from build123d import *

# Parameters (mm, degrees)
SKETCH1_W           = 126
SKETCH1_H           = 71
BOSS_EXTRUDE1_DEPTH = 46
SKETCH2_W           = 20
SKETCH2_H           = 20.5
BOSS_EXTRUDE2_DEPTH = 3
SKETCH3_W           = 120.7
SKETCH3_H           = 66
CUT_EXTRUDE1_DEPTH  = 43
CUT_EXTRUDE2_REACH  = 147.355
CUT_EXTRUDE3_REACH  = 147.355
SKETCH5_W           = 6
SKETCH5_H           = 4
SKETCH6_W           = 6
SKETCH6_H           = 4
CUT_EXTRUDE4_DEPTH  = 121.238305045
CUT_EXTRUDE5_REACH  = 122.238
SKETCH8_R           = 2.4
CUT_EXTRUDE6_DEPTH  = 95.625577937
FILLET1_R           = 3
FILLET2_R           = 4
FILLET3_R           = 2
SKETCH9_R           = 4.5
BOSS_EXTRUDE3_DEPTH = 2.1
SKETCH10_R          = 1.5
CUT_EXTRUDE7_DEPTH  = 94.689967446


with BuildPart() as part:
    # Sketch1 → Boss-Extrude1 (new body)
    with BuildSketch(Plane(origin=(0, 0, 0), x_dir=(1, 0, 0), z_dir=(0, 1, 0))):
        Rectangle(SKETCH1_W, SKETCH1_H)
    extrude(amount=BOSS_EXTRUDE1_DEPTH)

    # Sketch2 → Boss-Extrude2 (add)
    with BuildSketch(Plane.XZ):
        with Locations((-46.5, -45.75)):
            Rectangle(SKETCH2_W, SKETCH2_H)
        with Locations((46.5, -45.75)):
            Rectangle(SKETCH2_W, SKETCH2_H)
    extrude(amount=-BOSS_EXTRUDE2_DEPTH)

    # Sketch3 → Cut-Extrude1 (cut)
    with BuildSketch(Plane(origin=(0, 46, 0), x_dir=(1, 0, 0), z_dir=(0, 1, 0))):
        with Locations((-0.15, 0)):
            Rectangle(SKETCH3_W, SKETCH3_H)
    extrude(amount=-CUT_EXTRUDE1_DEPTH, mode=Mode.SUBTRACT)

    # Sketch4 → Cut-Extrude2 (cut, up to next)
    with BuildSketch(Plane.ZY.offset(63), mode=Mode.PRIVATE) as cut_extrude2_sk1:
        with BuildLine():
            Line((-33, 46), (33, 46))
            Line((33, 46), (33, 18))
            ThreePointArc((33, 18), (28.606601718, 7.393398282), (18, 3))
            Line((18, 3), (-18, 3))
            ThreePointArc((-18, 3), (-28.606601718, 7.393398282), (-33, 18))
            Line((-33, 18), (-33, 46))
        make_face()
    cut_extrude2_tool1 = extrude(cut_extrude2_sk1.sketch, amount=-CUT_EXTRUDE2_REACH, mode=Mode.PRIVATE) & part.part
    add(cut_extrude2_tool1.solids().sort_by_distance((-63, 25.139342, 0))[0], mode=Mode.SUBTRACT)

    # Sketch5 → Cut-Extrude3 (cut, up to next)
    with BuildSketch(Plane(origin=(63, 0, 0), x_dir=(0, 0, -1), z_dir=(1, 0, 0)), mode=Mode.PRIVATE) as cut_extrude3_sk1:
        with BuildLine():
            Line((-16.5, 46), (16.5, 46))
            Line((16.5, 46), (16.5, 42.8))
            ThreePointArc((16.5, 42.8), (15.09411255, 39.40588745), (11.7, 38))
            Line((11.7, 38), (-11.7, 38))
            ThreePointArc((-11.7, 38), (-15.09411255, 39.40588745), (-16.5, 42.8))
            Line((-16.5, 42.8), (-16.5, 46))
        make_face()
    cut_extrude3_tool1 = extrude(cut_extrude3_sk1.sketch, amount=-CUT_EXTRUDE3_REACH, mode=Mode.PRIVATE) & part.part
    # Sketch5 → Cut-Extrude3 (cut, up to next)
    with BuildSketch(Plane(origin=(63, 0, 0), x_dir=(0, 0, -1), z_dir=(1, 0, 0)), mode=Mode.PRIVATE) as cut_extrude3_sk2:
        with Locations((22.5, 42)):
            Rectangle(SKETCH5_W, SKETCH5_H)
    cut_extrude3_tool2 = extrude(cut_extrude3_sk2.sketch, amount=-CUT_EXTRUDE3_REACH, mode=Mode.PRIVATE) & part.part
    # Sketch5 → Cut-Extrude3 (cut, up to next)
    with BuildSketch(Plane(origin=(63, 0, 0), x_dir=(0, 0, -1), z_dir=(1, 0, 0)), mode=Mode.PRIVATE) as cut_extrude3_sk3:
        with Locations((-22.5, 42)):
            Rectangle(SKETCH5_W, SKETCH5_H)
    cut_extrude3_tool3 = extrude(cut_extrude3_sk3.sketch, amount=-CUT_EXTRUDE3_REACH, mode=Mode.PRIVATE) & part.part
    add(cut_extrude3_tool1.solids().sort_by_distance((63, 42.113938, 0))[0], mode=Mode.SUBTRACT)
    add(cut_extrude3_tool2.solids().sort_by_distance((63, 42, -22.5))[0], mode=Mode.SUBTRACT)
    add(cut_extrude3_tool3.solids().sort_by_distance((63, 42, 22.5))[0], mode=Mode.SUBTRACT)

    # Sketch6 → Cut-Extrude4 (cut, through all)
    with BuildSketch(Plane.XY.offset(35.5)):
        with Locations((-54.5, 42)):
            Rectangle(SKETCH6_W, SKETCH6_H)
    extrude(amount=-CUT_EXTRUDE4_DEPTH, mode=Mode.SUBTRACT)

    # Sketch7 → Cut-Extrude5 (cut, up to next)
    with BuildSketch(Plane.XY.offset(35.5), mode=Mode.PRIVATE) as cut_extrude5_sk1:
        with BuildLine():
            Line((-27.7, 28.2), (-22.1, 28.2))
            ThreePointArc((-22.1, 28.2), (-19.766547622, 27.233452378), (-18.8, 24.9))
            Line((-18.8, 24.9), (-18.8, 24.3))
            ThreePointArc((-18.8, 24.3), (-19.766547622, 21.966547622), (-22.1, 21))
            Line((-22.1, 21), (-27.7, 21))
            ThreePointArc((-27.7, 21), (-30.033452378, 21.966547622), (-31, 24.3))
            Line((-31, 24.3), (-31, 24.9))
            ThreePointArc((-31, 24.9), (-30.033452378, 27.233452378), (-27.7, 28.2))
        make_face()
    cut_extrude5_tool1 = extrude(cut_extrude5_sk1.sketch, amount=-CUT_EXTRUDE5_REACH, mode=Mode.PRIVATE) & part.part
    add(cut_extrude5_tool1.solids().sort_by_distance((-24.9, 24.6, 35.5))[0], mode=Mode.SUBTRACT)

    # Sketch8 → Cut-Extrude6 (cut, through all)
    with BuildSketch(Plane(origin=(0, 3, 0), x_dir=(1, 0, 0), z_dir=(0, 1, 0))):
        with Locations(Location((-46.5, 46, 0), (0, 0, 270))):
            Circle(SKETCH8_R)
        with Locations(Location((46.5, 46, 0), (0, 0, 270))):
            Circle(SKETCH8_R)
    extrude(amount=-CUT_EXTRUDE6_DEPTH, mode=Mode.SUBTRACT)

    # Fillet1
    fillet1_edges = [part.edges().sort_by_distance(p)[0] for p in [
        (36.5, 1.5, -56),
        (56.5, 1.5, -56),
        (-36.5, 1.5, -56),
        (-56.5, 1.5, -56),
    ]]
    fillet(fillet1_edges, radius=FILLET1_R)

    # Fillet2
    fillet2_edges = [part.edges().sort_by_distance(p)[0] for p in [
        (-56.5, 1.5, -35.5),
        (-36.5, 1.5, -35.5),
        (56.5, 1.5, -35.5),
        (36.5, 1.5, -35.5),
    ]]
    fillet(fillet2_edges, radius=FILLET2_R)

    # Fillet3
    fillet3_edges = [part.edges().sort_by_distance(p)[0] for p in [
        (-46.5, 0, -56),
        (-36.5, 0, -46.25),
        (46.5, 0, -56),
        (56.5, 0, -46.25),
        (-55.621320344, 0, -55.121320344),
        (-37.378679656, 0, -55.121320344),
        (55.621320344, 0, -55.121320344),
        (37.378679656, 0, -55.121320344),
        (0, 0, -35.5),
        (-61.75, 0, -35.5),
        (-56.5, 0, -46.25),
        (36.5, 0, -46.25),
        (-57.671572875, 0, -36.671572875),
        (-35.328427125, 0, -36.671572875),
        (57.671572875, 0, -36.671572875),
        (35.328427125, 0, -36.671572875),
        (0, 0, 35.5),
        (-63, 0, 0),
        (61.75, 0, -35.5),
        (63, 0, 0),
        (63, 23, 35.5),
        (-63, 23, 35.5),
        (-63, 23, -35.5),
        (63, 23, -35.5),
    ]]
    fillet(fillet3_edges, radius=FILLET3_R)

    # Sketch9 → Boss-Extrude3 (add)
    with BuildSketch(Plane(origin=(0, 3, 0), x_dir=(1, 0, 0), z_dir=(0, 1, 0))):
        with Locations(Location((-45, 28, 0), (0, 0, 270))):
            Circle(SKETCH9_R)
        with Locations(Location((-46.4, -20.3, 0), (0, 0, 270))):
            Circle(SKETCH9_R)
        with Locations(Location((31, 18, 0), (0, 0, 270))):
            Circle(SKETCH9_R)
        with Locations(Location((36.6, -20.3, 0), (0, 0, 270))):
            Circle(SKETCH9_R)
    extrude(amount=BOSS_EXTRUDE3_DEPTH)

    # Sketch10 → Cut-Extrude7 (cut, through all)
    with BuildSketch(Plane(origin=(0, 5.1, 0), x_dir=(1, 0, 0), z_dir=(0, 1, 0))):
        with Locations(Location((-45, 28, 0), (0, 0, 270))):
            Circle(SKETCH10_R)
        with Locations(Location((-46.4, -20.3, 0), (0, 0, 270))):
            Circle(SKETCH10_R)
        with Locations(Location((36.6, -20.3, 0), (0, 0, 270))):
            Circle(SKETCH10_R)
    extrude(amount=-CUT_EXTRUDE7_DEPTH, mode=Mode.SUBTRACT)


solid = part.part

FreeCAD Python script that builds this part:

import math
import FreeCAD as App
import Part
import Sketcher

V = App.Vector


def edges_at(feature, points):
    """Names of the edges that pass closest to the given points."""
    edges = feature.Shape.Edges
    near = lambda p: min(range(len(edges)), key=lambda i: edges[i].distToShape(Part.Vertex(*p))[0])
    return sorted({f"Edge{near(p) + 1}" for p in points})


def add_polygon(sketch, points):
    """Adds a closed chain of lines whose ends are joined by coincident constraints."""
    first, n = sketch.GeometryCount, len(points)
    for a, b in zip(points, points[1:] + points[:1]):
        sketch.addGeometry(Part.LineSegment(App.Vector(*a, 0), App.Vector(*b, 0)), False)
    for i in range(n):
        sketch.addConstraint(Sketcher.Constraint("Coincident", first + i, 2, first + (i + 1) % n, 1))

doc = App.newDocument("Part")
body = doc.addObject("PartDesign::Body", "Body")

# Sketch on XZ plane
sketch1 = body.newObject("Sketcher::SketchObject", "Sketch")
sketch1.AttachmentSupport = (doc.getObject("XZ_Plane"), [""])
sketch1.MapMode = "FlatFace"
add_polygon(sketch1, [(-63, -35.5), (-63, 35.5), (63, 35.5), (63, -35.5)])  # lines 0-3
sketch1.addConstraint([
    Sketcher.Constraint("Vertical", 0),
    Sketcher.Constraint("Horizontal", 1),
    Sketcher.Constraint("Vertical", 2),
    Sketcher.Constraint("Horizontal", 3),
    Sketcher.Constraint("Symmetric", 0, 2, 2, 2, -1, 1),
    Sketcher.Constraint("DistanceX", 1, 1, 1, 2, 126.0),
    Sketcher.Constraint("DistanceY", 0, 1, 0, 2, 71.0),
])
pad1 = body.newObject("PartDesign::Pad", "Pad")
pad1.Profile = sketch1
pad1.Length = 46
pad1.Reversed = True

# Sketch on XZ plane
sketch2 = body.newObject("Sketcher::SketchObject", "Sketch001")
sketch2.AttachmentSupport = (doc.getObject("XZ_Plane"), [""])
sketch2.MapMode = "FlatFace"
add_polygon(sketch2, [(-56.5, -35.5), (-56.5, -56), (-36.5, -56), (-36.5, -35.5)])  # lines 0-3
add_polygon(sketch2, [(36.5, -35.5), (36.5, -56), (56.5, -56), (56.5, -35.5)])  # lines 4-7
sketch2.addConstraint([
    Sketcher.Constraint("Vertical", 0),
    Sketcher.Constraint("Horizontal", 1),
    Sketcher.Constraint("Vertical", 2),
    Sketcher.Constraint("Horizontal", 3),
    Sketcher.Constraint("Vertical", 4),
    Sketcher.Constraint("Horizontal", 5),
    Sketcher.Constraint("Vertical", 6),
    Sketcher.Constraint("Horizontal", 7),
    Sketcher.Constraint("Symmetric", 1, 2, 4, 2, -2),
    Sketcher.Constraint("Symmetric", 3, 2, 6, 2, -2),
    Sketcher.Constraint("DistanceX", 1, 1, 1, 2, 20.0),
    Sketcher.Constraint("DistanceY", 0, 2, 0, 1, 20.5),
    Sketcher.Constraint("DistanceY", 0, 2, -1, 1, 56.0),
    Sketcher.Constraint("DistanceX", 1, 2, 4, 2, 73.0),
])
pad2 = body.newObject("PartDesign::Pad", "Pad001")
pad2.Profile = sketch2
pad2.Length = 3
pad2.Reversed = True

# Sketch on XZ plane
sketch3 = body.newObject("Sketcher::SketchObject", "Sketch002")
sketch3.AttachmentSupport = (doc.getObject("XZ_Plane"), [""])
sketch3.MapMode = "FlatFace"
sketch3.AttachmentOffset = App.Placement(V(0, 0, -46), App.Rotation())
add_polygon(sketch3, [(-60.5, -33), (-60.5, 33), (60.2, 33), (60.2, -33)])  # lines 0-3
sketch3.addConstraint([
    Sketcher.Constraint("Vertical", 0),
    Sketcher.Constraint("Horizontal", 1),
    Sketcher.Constraint("Vertical", 2),
    Sketcher.Constraint("Horizontal", 3),
    Sketcher.Constraint("DistanceY", 0, 1, 0, 2, 66.0),
    Sketcher.Constraint("DistanceX", 1, 1, 1, 2, 120.7),
    Sketcher.Constraint("DistanceY", -1, 1, 0, 2, 33.0),
    Sketcher.Constraint("DistanceX", 0, 2, -1, 1, 60.5),
])
pocket1 = body.newObject("PartDesign::Pocket", "Pocket")
pocket1.Profile = sketch3
pocket1.Length = 43
pocket1.Reversed = True

# Sketch on YZ plane
sketch4 = body.newObject("Sketcher::SketchObject", "Sketch003")
sketch4.AttachmentSupport = (doc.getObject("YZ_Plane"), [""])
sketch4.MapMode = "FlatFace"
sketch4.AttachmentOffset = App.Placement(V(0, 0, -63), App.Rotation())
sketch4.addGeometry([
    Part.LineSegment(V(46, 33, 0), V(46, -33, 0)),  # 0
    Part.LineSegment(V(46, -33, 0), V(18, -33, 0)),  # 1
    Part.ArcOfCircle(Part.Circle(V(18, -18, 0), V(0, 0, 1), 15), math.radians(180), math.radians(270)),  # 2
    Part.LineSegment(V(3, -18, 0), V(3, 18, 0)),  # 3
    Part.ArcOfCircle(Part.Circle(V(18, 18, 0), V(0, 0, 1), 15), math.radians(90), math.radians(180)),  # 4
    Part.LineSegment(V(18, 33, 0), V(46, 33, 0)),  # 5
], False)
sketch4.addConstraint([
    Sketcher.Constraint("Coincident", 0, 2, 1, 1),
    Sketcher.Constraint("Tangent", 1, 2, 2, 2),
    Sketcher.Constraint("Tangent", 2, 1, 3, 1),
    Sketcher.Constraint("Tangent", 3, 2, 4, 2),
    Sketcher.Constraint("Tangent", 4, 1, 5, 1),
    Sketcher.Constraint("Coincident", 5, 2, 0, 1),
    Sketcher.Constraint("Vertical", 0),
    Sketcher.Constraint("Horizontal", 1),
    Sketcher.Constraint("Vertical", 3),
    Sketcher.Constraint("Horizontal", 5),
    Sketcher.Constraint("Equal", 2, 4),
    Sketcher.Constraint("Radius", 2, 15.0),
    Sketcher.Constraint("DistanceX", 1, 2, 1, 1, 28.0),
    Sketcher.Constraint("DistanceY", 0, 2, 0, 1, 66.0),
    Sketcher.Constraint("DistanceX", -1, 1, 2, 3, 18.0),
    Sketcher.Constraint("DistanceY", 2, 3, -1, 1, 18.0),
])
pocket2 = body.newObject("PartDesign::Pocket", "Pocket001")
pocket2.Profile = sketch4
pocket2.Type = "UpToFirst"
pocket2.Reversed = True

# Sketch on YZ plane
sketch5 = body.newObject("Sketcher::SketchObject", "Sketch004")
sketch5.AttachmentSupport = (doc.getObject("YZ_Plane"), [""])
sketch5.MapMode = "FlatFace"
sketch5.AttachmentOffset = App.Placement(V(0, 0, 63), App.Rotation())
sketch5.addGeometry([
    Part.LineSegment(V(46, -16.5, 0), V(46, 16.5, 0)),  # 0
    Part.LineSegment(V(46, 16.5, 0), V(42.8, 16.5, 0)),  # 1
    Part.ArcOfCircle(Part.Circle(V(42.8, 11.7, 0), V(0, 0, 1), 4.8), math.radians(90), math.radians(180)),  # 2
    Part.LineSegment(V(38, 11.7, 0), V(38, -11.7, 0)),  # 3
    Part.ArcOfCircle(Part.Circle(V(42.8, -11.7, 0), V(0, 0, 1), 4.8), math.radians(180), math.radians(270)),  # 4
    Part.LineSegment(V(42.8, -16.5, 0), V(46, -16.5, 0)),  # 5
], False)
sketch5.addConstraint([
    Sketcher.Constraint("Coincident", 0, 2, 1, 1),
    Sketcher.Constraint("Tangent", 1, 2, 2, 1),
    Sketcher.Constraint("Tangent", 2, 2, 3, 1),
    Sketcher.Constraint("Tangent", 3, 2, 4, 1),
    Sketcher.Constraint("Tangent", 4, 2, 5, 1),
    Sketcher.Constraint("Coincident", 5, 2, 0, 1),
    Sketcher.Constraint("Vertical", 0),
    Sketcher.Constraint("Horizontal", 1),
    Sketcher.Constraint("Vertical", 3),
    Sketcher.Constraint("Horizontal", 5),
    Sketcher.Constraint("Equal", 2, 4),
    Sketcher.Constraint("Radius", 2, 4.8),
    Sketcher.Constraint("DistanceY", 0, 1, 0, 2, 33.0),
    Sketcher.Constraint("DistanceX", 1, 2, 1, 1, 3.2),
    Sketcher.Constraint("DistanceX", -1, 1, 0, 2, 46.0),
    Sketcher.Constraint("DistanceY", -1, 1, 2, 3, 11.7),
])
pocket3 = body.newObject("PartDesign::Pocket", "Pocket002")
pocket3.Profile = sketch5
pocket3.Type = "UpToFirst"

# Sketch on YZ plane
sketch6 = body.newObject("Sketcher::SketchObject", "Sketch005")
sketch6.AttachmentSupport = (doc.getObject("YZ_Plane"), [""])
sketch6.MapMode = "FlatFace"
sketch6.AttachmentOffset = App.Placement(V(0, 0, 63), App.Rotation())
add_polygon(sketch6, [(44, -19.5), (40, -19.5), (40, -25.5), (44, -25.5)])  # lines 0-3
sketch6.addConstraint([
    Sketcher.Constraint("Horizontal", 0),
    Sketcher.Constraint("Vertical", 1),
    Sketcher.Constraint("Horizontal", 2),
    Sketcher.Constraint("Vertical", 3),
    Sketcher.Constraint("DistanceX", 0, 2, 0, 1, 4.0),
    Sketcher.Constraint("DistanceY", 1, 2, 1, 1, 6.0),
    Sketcher.Constraint("DistanceX", -1, 1, 0, 2, 40.0),
    Sketcher.Constraint("DistanceY", 0, 2, -1, 1, 19.5),
])
pocket4 = body.newObject("PartDesign::Pocket", "Pocket003")
pocket4.Profile = sketch6
pocket4.Type = "UpToFirst"

# Sketch on YZ plane
sketch7 = body.newObject("Sketcher::SketchObject", "Sketch006")
sketch7.AttachmentSupport = (doc.getObject("YZ_Plane"), [""])
sketch7.MapMode = "FlatFace"
sketch7.AttachmentOffset = App.Placement(V(0, 0, 63), App.Rotation())
add_polygon(sketch7, [(44, 25.5), (40, 25.5), (40, 19.5), (44, 19.5)])  # lines 0-3
sketch7.addConstraint([
    Sketcher.Constraint("Horizontal", 0),
    Sketcher.Constraint("Vertical", 1),
    Sketcher.Constraint("Horizontal", 2),
    Sketcher.Constraint("Vertical", 3),
    Sketcher.Constraint("DistanceX", 0, 2, 0, 1, 4.0),
    Sketcher.Constraint("DistanceY", 1, 2, 1, 1, 6.0),
    Sketcher.Constraint("DistanceX", -1, 1, 0, 2, 40.0),
    Sketcher.Constraint("DistanceY", -1, 1, 0, 2, 25.5),
])
pocket5 = body.newObject("PartDesign::Pocket", "Pocket004")
pocket5.Profile = sketch7
pocket5.Type = "UpToFirst"

# Sketch on XY plane
sketch8 = body.newObject("Sketcher::SketchObject", "Sketch007")
sketch8.AttachmentSupport = (doc.getObject("XY_Plane"), [""])
sketch8.MapMode = "FlatFace"
sketch8.AttachmentOffset = App.Placement(V(0, 0, 35.5), App.Rotation())
add_polygon(sketch8, [(-57.5, 44), (-57.5, 40), (-51.5, 40), (-51.5, 44)])  # lines 0-3
sketch8.addConstraint([
    Sketcher.Constraint("Vertical", 0),
    Sketcher.Constraint("Horizontal", 1),
    Sketcher.Constraint("Vertical", 2),
    Sketcher.Constraint("Horizontal", 3),
    Sketcher.Constraint("DistanceX", 1, 1, 1, 2, 6.0),
    Sketcher.Constraint("DistanceY", 0, 2, 0, 1, 4.0),
    Sketcher.Constraint("DistanceY", -1, 1, 0, 2, 40.0),
    Sketcher.Constraint("DistanceX", 0, 2, -1, 1, 57.5),
])
pocket6 = body.newObject("PartDesign::Pocket", "Pocket005")
pocket6.Profile = sketch8
pocket6.Type = "ThroughAll"

# Sketch on XY plane
sketch9 = body.newObject("Sketcher::SketchObject", "Sketch008")
sketch9.AttachmentSupport = (doc.getObject("XY_Plane"), [""])
sketch9.MapMode = "FlatFace"
sketch9.AttachmentOffset = App.Placement(V(0, 0, 35.5), App.Rotation())
sketch9.addGeometry([
    Part.LineSegment(V(-22.1, 28.2, 0), V(-27.7, 28.2, 0)),  # 0
    Part.ArcOfCircle(Part.Circle(V(-27.7, 24.9, 0), V(0, 0, 1), 3.3), math.radians(90), math.radians(180)),  # 1
    Part.LineSegment(V(-31, 24.9, 0), V(-31, 24.3, 0)),  # 2
    Part.ArcOfCircle(Part.Circle(V(-27.7, 24.3, 0), V(0, 0, 1), 3.3), math.radians(180), math.radians(270)),  # 3
    Part.LineSegment(V(-27.7, 21, 0), V(-22.1, 21, 0)),  # 4
    Part.ArcOfCircle(Part.Circle(V(-22.1, 24.3, 0), V(0, 0, 1), 3.3), math.radians(-90), math.radians(0)),  # 5
    Part.LineSegment(V(-18.8, 24.3, 0), V(-18.8, 24.9, 0)),  # 6
    Part.ArcOfCircle(Part.Circle(V(-22.1, 24.9, 0), V(0, 0, 1), 3.3), math.radians(0), math.radians(90)),  # 7
], False)
sketch9.addConstraint([
    Sketcher.Constraint("Tangent", 0, 2, 1, 1),
    Sketcher.Constraint("Tangent", 1, 2, 2, 1),
    Sketcher.Constraint("Tangent", 2, 2, 3, 1),
    Sketcher.Constraint("Tangent", 3, 2, 4, 1),
    Sketcher.Constraint("Tangent", 4, 2, 5, 1),
    Sketcher.Constraint("Tangent", 5, 2, 6, 1),
    Sketcher.Constraint("Tangent", 6, 2, 7, 1),
    Sketcher.Constraint("Tangent", 7, 2, 0, 1),
    Sketcher.Constraint("Horizontal", 0),
    Sketcher.Constraint("Vertical", 2),
    Sketcher.Constraint("Horizontal", 4),
    Sketcher.Constraint("Vertical", 6),
    Sketcher.Constraint("Equal", 1, 3),
    Sketcher.Constraint("Equal", 3, 5),
    Sketcher.Constraint("Equal", 5, 7),
    Sketcher.Constraint("Radius", 1, 3.3),
    Sketcher.Constraint("DistanceX", 0, 2, 0, 1, 5.6),
    Sketcher.Constraint("DistanceY", 2, 2, 2, 1, 0.6),
    Sketcher.Constraint("DistanceX", 1, 2, -1, 1, 31.0),
    Sketcher.Constraint("DistanceY", -1, 1, 3, 2, 21.0),
])
pocket7 = body.newObject("PartDesign::Pocket", "Pocket006")
pocket7.Profile = sketch9
pocket7.Type = "UpToFirst"

# Sketch on XZ plane
sketch10 = body.newObject("Sketcher::SketchObject", "Sketch009")
sketch10.AttachmentSupport = (doc.getObject("XZ_Plane"), [""])
sketch10.MapMode = "FlatFace"
sketch10.AttachmentOffset = App.Placement(V(0, 0, -3), App.Rotation())
sketch10.addGeometry([
    Part.Circle(V(-46.5, -46, 0), V(0, 0, 1), 2.4),
    Part.Circle(V(46.5, -46, 0), V(0, 0, 1), 2.4),
], False)
sketch10.addConstraint([
    Sketcher.Constraint("Equal", 0, 1),
    Sketcher.Constraint("Symmetric", 0, 3, 1, 3, -2),
    Sketcher.Constraint("Diameter", 0, 4.8),
    Sketcher.Constraint("DistanceY", 0, 3, -1, 1, 46.0),
    Sketcher.Constraint("DistanceX", 0, 3, 1, 3, 93.0),
])
pocket8 = body.newObject("PartDesign::Pocket", "Pocket007")
pocket8.Profile = sketch10
pocket8.Type = "ThroughAll"
pocket8.Reversed = True
doc.recompute()

fillet = body.newObject("PartDesign::Fillet", "Fillet")
fillet.Base = (pocket8, edges_at(pocket8, [
    (36.5, 1.5, -56),
    (56.5, 1.5, -56),
    (-36.5, 1.5, -56),
    (-56.5, 1.5, -56),
]))
fillet.Radius = 3
doc.recompute()

fillet2 = body.newObject("PartDesign::Fillet", "Fillet001")
fillet2.Base = (fillet, edges_at(fillet, [
    (-56.5, 1.5, -35.5),
    (-36.5, 1.5, -35.5),
    (56.5, 1.5, -35.5),
    (36.5, 1.5, -35.5),
]))
fillet2.Radius = 4
doc.recompute()

fillet3 = body.newObject("PartDesign::Fillet", "Fillet002")
fillet3.Base = (fillet2, edges_at(fillet2, [
    (-46.5, 0, -56),
    (-36.5, 0, -46.25),
    (46.5, 0, -56),
    (56.5, 0, -46.25),
    (-55.621, 0, -55.121),
    (-37.379, 0, -55.121),
    (55.621, 0, -55.121),
    (37.379, 0, -55.121),
    (0, 0, -35.5),
    (-61.75, 0, -35.5),
    (-56.5, 0, -46.25),
    (36.5, 0, -46.25),
    (-57.672, 0, -36.672),
    (-35.328, 0, -36.672),
    (57.672, 0, -36.672),
    (35.328, 0, -36.672),
    (0, 0, 35.5),
    (-63, 0, 0),
    (61.75, 0, -35.5),
    (63, 0, 0),
    (63, 23, 35.5),
    (-63, 23, 35.5),
    (-63, 23, -35.5),
    (63, 23, -35.5),
]))
fillet3.Radius = 2

# Sketch on XZ plane
sketch11 = body.newObject("Sketcher::SketchObject", "Sketch010")
sketch11.AttachmentSupport = (doc.getObject("XZ_Plane"), [""])
sketch11.MapMode = "FlatFace"
sketch11.AttachmentOffset = App.Placement(V(0, 0, -3), App.Rotation())
sketch11.addGeometry([
    Part.Circle(V(-45, -28, 0), V(0, 0, 1), 4.5),
    Part.Circle(V(-46.4, 20.3, 0), V(0, 0, 1), 4.5),
    Part.Circle(V(31, -18, 0), V(0, 0, 1), 4.5),
    Part.Circle(V(36.6, 20.3, 0), V(0, 0, 1), 4.5),
], False)
sketch11.addConstraint([
    Sketcher.Constraint("Equal", 0, 1),
    Sketcher.Constraint("Equal", 1, 2),
    Sketcher.Constraint("Equal", 2, 3),
    Sketcher.Constraint("Horizontal", 1, 3, 3, 3),
    Sketcher.Constraint("Diameter", 0, 9.0),
    Sketcher.Constraint("DistanceX", 0, 3, -1, 1, 45.0),
    Sketcher.Constraint("DistanceY", 0, 3, -1, 1, 28.0),
    Sketcher.Constraint("DistanceX", -1, 1, 2, 3, 31.0),
    Sketcher.Constraint("DistanceY", 2, 3, -1, 1, 18.0),
    Sketcher.Constraint("DistanceX", 1, 3, 3, 3, 83.0),
    Sketcher.Constraint("DistanceX", 1, 3, -1, 1, 46.4),
    Sketcher.Constraint("DistanceY", -1, 1, 1, 3, 20.3),
])
pad3 = body.newObject("PartDesign::Pad", "Pad002")
pad3.Profile = sketch11
pad3.Length = 2.1
pad3.Reversed = True

# Sketch on XZ plane
sketch12 = body.newObject("Sketcher::SketchObject", "Sketch011")
sketch12.AttachmentSupport = (doc.getObject("XZ_Plane"), [""])
sketch12.MapMode = "FlatFace"
sketch12.AttachmentOffset = App.Placement(V(0, 0, -5.1), App.Rotation())
sketch12.addGeometry([
    Part.Circle(V(-45, -28, 0), V(0, 0, 1), 1.5),
    Part.Circle(V(-46.4, 20.3, 0), V(0, 0, 1), 1.5),
    Part.Circle(V(36.6, 20.3, 0), V(0, 0, 1), 1.5),
], False)
sketch12.addConstraint([
    Sketcher.Constraint("Equal", 0, 1),
    Sketcher.Constraint("Equal", 1, 2),
    Sketcher.Constraint("Horizontal", 1, 3, 2, 3),
    Sketcher.Constraint("Diameter", 0, 3.0),
    Sketcher.Constraint("DistanceX", 0, 3, -1, 1, 45.0),
    Sketcher.Constraint("DistanceY", 0, 3, -1, 1, 28.0),
    Sketcher.Constraint("DistanceX", 1, 3, 2, 3, 83.0),
    Sketcher.Constraint("DistanceX", 1, 3, -1, 1, 46.4),
    Sketcher.Constraint("DistanceY", -1, 1, 1, 3, 20.3),
])
pocket9 = body.newObject("PartDesign::Pocket", "Pocket008")
pocket9.Profile = sketch12
pocket9.Type = "ThroughAll"
pocket9.Reversed = True

doc.recompute()
